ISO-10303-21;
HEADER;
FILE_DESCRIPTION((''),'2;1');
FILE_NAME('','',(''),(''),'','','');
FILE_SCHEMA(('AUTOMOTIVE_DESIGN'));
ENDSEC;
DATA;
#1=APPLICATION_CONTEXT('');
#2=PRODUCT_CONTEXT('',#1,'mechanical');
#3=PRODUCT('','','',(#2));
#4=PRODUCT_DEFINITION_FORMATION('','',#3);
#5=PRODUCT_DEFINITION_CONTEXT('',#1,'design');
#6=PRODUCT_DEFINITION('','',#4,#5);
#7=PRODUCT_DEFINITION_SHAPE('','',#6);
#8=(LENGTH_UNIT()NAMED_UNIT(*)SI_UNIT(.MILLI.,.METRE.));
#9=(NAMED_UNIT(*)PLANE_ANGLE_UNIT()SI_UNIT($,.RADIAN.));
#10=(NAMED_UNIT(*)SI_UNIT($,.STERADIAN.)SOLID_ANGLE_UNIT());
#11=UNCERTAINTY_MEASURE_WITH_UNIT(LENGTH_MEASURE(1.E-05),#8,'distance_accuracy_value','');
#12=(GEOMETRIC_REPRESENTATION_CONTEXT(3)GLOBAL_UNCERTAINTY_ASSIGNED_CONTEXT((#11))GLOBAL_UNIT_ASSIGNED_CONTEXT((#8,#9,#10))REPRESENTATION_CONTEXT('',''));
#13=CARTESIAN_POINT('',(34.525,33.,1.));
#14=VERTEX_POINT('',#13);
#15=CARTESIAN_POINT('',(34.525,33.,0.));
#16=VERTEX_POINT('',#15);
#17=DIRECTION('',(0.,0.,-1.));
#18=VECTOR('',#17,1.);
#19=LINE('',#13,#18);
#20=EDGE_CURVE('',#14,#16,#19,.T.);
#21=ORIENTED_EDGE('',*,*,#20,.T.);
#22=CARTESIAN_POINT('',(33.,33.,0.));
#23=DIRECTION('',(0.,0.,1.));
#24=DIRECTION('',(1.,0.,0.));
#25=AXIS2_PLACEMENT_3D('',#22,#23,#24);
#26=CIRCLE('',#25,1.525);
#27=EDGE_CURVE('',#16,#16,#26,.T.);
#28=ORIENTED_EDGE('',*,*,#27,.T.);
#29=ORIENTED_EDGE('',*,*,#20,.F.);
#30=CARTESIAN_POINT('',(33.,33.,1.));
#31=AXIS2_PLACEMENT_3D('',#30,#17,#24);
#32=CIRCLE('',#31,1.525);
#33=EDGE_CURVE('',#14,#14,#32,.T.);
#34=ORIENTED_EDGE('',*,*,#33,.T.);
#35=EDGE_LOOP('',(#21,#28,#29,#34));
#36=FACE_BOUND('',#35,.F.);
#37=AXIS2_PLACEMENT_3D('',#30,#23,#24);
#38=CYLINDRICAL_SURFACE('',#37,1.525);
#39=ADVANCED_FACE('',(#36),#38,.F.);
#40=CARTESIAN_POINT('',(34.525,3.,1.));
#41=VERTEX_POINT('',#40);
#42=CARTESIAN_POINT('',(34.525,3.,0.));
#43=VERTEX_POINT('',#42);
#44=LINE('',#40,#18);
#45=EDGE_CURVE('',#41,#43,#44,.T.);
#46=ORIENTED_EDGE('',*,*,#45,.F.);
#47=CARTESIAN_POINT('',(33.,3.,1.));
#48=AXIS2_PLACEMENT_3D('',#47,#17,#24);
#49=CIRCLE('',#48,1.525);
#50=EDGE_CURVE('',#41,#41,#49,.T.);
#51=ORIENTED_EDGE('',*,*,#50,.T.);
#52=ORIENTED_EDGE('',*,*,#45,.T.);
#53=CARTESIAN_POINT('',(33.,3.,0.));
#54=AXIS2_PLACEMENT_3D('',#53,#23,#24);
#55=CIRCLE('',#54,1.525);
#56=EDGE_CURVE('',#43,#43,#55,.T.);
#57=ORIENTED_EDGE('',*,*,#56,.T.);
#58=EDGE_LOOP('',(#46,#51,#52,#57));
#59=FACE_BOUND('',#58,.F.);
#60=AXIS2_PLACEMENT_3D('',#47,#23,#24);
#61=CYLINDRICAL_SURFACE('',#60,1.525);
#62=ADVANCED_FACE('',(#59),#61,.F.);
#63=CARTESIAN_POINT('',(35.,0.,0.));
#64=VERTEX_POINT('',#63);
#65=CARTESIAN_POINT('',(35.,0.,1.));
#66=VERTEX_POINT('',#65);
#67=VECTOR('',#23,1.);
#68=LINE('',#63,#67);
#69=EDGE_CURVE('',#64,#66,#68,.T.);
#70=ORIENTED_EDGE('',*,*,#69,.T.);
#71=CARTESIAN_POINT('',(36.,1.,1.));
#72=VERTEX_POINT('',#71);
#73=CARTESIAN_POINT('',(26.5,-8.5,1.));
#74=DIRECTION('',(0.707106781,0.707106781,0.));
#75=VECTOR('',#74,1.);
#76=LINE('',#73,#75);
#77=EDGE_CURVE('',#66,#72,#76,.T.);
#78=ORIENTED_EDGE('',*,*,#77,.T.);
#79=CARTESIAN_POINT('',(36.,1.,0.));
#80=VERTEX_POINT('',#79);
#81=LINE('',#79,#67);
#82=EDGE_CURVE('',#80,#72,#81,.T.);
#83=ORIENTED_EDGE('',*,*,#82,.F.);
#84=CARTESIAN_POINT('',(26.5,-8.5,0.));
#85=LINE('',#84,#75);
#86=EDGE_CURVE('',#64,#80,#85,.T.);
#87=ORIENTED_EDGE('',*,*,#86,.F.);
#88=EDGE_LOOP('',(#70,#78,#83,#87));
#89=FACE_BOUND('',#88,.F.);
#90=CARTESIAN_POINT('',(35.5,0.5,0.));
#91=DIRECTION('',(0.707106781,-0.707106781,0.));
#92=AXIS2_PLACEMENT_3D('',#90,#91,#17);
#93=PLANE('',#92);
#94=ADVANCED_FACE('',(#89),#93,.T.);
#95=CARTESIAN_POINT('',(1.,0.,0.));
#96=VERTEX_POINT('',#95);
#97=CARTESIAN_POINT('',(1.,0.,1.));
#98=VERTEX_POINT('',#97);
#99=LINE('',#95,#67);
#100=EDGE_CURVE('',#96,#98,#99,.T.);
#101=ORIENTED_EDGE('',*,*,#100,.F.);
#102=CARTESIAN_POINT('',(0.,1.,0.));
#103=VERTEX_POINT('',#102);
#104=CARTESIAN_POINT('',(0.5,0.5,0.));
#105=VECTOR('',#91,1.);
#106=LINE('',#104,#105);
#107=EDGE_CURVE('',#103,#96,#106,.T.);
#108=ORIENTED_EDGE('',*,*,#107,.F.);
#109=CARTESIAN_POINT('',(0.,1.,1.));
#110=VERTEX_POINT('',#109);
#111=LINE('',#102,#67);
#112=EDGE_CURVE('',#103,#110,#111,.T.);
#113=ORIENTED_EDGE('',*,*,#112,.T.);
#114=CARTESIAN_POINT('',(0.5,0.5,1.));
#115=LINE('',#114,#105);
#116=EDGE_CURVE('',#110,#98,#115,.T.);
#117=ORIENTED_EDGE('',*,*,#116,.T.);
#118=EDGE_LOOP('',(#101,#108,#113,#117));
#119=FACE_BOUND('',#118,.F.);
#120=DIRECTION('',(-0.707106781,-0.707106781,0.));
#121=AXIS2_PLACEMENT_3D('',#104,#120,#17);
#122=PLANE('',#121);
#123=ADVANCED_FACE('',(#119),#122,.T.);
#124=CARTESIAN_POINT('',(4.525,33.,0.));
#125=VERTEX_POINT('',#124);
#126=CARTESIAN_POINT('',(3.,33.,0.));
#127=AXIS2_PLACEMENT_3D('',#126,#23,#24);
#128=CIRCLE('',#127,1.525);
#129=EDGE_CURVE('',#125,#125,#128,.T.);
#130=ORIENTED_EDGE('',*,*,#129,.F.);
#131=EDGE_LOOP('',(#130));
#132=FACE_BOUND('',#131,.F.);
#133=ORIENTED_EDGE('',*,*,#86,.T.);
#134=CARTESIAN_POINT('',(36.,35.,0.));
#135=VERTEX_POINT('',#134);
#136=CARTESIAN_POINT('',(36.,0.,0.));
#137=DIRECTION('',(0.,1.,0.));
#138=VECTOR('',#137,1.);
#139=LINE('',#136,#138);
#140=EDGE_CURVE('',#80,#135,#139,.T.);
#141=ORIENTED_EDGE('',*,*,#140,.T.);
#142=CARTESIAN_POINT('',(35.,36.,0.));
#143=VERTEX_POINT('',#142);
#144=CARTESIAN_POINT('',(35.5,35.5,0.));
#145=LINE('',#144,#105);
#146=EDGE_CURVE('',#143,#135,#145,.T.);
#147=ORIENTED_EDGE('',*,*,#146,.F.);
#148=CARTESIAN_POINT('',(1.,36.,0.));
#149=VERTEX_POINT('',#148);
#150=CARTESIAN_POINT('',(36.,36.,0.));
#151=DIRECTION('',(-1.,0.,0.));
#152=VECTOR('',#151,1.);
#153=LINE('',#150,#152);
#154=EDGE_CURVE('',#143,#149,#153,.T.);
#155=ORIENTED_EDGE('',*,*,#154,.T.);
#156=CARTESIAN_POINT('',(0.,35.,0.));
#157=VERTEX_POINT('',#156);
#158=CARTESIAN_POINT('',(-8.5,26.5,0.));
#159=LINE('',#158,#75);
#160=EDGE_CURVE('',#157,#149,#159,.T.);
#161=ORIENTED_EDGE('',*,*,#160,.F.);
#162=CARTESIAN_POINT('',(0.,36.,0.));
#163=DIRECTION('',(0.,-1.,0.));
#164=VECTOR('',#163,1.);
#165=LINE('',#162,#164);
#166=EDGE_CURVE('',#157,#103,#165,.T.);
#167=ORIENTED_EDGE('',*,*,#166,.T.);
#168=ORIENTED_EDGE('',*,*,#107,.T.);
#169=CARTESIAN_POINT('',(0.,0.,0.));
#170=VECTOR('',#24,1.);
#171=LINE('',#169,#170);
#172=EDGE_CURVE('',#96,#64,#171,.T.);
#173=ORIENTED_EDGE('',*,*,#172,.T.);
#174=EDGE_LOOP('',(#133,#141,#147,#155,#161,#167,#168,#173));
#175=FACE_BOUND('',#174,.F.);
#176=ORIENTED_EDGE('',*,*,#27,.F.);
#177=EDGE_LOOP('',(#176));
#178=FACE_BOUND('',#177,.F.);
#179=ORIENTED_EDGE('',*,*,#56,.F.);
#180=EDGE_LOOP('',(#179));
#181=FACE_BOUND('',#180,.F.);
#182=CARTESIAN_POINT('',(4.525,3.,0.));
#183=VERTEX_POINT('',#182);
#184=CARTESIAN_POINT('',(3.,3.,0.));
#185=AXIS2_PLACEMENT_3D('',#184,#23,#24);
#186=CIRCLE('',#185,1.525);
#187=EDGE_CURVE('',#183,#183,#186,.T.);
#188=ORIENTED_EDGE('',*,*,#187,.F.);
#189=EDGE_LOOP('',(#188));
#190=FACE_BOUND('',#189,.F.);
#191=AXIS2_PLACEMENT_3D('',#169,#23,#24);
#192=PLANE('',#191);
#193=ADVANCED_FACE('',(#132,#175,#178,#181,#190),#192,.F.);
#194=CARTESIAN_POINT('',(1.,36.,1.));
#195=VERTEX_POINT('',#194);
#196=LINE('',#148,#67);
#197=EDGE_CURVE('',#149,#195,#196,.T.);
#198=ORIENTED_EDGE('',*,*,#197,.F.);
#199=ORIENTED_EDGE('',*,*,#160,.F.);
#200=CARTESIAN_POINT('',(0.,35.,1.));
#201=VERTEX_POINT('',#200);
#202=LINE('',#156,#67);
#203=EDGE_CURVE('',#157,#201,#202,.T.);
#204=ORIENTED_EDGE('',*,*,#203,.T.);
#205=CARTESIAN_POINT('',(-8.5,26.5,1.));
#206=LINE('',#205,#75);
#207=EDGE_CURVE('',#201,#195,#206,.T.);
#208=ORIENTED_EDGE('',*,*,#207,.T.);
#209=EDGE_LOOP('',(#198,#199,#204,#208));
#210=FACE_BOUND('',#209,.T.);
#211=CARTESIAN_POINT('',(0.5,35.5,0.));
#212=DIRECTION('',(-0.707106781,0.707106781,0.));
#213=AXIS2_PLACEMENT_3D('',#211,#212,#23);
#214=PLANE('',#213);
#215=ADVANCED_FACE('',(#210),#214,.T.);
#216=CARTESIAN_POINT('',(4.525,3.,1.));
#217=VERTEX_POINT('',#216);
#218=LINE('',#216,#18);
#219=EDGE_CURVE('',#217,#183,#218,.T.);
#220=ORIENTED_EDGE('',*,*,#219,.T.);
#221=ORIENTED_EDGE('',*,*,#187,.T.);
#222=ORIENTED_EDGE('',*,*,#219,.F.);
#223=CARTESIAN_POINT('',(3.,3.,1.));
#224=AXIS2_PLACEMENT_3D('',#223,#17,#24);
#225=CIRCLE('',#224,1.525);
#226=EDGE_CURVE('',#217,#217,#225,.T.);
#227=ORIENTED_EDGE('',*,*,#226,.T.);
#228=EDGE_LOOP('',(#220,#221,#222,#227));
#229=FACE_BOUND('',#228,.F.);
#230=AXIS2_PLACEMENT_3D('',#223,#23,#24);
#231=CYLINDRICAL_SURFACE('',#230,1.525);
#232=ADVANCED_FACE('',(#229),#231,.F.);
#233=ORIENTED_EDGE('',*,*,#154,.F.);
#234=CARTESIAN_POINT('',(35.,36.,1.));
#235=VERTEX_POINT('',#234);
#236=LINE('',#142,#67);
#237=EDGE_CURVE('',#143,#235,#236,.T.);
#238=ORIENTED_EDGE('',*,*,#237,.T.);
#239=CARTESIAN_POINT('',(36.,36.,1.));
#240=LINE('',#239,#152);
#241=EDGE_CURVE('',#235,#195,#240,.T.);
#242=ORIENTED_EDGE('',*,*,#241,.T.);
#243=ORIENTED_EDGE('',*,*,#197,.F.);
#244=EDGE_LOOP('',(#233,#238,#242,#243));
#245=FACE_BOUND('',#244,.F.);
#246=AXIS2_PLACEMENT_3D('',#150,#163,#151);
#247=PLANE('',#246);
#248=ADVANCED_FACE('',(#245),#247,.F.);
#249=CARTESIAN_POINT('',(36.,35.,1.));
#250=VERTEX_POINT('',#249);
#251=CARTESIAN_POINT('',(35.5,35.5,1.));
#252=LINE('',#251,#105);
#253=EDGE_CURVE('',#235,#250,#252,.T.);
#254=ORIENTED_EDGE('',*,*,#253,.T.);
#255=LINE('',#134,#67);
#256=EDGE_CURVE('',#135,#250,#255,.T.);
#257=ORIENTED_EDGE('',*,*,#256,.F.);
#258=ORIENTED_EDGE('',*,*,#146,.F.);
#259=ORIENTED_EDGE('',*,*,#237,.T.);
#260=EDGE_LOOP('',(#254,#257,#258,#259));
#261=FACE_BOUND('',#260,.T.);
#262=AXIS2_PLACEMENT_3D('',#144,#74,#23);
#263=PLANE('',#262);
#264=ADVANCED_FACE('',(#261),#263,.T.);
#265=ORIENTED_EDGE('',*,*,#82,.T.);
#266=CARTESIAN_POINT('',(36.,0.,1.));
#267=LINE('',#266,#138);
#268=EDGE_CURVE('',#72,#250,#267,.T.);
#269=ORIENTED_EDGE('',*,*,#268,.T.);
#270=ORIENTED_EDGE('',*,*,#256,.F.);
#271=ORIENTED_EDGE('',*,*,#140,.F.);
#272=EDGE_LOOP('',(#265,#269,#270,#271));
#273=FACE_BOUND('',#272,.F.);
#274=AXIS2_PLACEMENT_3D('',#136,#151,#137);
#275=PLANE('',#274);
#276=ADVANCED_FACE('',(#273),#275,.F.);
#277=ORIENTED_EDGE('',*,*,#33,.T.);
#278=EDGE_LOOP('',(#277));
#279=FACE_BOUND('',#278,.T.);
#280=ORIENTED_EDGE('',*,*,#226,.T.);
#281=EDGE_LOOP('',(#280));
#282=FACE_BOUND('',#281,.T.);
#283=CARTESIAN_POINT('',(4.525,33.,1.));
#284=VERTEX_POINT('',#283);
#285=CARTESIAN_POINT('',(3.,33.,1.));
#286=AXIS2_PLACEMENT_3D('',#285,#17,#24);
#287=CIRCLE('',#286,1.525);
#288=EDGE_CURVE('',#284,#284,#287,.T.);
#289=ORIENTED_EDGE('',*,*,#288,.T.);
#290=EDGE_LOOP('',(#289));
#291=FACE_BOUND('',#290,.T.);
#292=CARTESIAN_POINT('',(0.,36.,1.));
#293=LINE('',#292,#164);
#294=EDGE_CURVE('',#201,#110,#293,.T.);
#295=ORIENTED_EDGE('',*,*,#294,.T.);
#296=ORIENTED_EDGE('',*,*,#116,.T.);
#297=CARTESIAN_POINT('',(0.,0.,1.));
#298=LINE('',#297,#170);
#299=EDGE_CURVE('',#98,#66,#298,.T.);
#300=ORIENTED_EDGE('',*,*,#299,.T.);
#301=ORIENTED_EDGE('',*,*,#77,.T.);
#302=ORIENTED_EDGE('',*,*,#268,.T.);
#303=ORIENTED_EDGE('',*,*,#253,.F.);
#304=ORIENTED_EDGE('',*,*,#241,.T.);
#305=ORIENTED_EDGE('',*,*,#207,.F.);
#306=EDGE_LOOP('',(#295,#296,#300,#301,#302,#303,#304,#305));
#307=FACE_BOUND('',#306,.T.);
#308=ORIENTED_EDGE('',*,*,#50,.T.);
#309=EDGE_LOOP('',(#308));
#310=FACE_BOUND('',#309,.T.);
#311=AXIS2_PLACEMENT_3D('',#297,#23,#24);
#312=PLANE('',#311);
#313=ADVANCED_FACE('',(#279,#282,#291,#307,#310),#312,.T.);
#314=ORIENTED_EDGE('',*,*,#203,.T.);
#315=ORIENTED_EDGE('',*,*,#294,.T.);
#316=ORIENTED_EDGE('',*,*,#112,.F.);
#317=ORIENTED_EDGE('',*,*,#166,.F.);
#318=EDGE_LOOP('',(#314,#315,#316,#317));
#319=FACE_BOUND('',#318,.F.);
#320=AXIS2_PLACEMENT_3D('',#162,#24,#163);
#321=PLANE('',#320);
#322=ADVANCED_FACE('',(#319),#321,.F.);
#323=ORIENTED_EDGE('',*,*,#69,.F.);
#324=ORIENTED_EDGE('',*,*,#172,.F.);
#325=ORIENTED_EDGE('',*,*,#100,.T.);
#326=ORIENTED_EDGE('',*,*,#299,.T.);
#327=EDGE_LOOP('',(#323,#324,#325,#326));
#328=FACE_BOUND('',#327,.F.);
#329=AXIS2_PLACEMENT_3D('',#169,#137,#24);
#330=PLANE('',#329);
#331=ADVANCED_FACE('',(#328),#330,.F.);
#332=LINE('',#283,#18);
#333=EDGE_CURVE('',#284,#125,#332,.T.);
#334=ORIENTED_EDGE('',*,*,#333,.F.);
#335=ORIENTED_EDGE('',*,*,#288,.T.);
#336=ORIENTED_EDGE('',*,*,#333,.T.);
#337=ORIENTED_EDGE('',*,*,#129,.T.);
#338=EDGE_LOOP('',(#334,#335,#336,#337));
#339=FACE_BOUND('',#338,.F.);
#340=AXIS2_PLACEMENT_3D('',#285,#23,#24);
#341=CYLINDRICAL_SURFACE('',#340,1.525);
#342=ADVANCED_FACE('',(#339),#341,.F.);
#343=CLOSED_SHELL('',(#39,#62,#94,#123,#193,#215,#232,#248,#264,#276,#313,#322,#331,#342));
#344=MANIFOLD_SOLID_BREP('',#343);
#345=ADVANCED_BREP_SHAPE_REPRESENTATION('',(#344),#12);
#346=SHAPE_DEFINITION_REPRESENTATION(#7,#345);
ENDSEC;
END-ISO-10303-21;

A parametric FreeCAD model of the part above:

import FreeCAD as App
import Part
import Sketcher

V = App.Vector


def edges_at(feature, points):
    """Names of the edges that pass closest to the given points."""
    edges = feature.Shape.Edges
    near = lambda p: min(range(len(edges)), key=lambda i: edges[i].distToShape(Part.Vertex(*p))[0])
    return sorted({f"Edge{near(p) + 1}" for p in points})


def add_polygon(sketch, points):
    """Adds a closed chain of lines whose ends are joined by coincident constraints."""
    first, n = sketch.GeometryCount, len(points)
    for a, b in zip(points, points[1:] + points[:1]):
        sketch.addGeometry(Part.LineSegment(App.Vector(*a, 0), App.Vector(*b, 0)), False)
    for i in range(n):
        sketch.addConstraint(Sketcher.Constraint("Coincident", first + i, 2, first + (i + 1) % n, 1))

doc = App.newDocument("Part")
body = doc.addObject("PartDesign::Body", "Body")

# Sketch on XY plane
sketch1 = doc.addObject("Sketcher::SketchObject", "Sketch")
body.addObject(sketch1)
sketch1.AttachmentSupport = (doc.XY_Plane, [""])
sketch1.MapMode = "FlatFace"
add_polygon(sketch1, [(0, 36), (0, 0), (36, 0), (36, 36)])  # lines 0-3
sketch1.addConstraint([
    Sketcher.Constraint("Vertical", 0),
    Sketcher.Constraint("Horizontal", 1),
    Sketcher.Constraint("Vertical", 2),
    Sketcher.Constraint("Horizontal", 3),
    Sketcher.Constraint("Coincident", 0, 2, -1, 1),
    Sketcher.Constraint("Equal", 3, 0),
    Sketcher.Constraint("DistanceX", 1, 1, 1, 2, 36.0),
])
pad1 = doc.addObject("PartDesign::Pad", "Pad")
body.addObject(pad1)
pad1.Profile = sketch1
pad1.Length = 1

# Sketch on XY plane
sketch2 = doc.addObject("Sketcher::SketchObject", "Sketch001")
body.addObject(sketch2)
sketch2.AttachmentSupport = (doc.XY_Plane, [""])
sketch2.MapMode = "FlatFace"
sketch2.AttachmentOffset = App.Placement(V(0, 0, 1), App.Rotation())
sketch2.addGeometry([
    Part.Circle(V(3, 33, 0), V(0, 0, 1), 1.5),
    Part.Circle(V(33, 33, 0), V(0, 0, 1), 1.5),
    Part.Circle(V(3, 3, 0), V(0, 0, 1), 1.5),
    Part.Circle(V(33, 3, 0), V(0, 0, 1), 1.5),
], False)
sketch2.addConstraint([
    Sketcher.Constraint("Equal", 0, 1),
    Sketcher.Constraint("Equal", 1, 2),
    Sketcher.Constraint("Equal", 2, 3),
    Sketcher.Constraint("Horizontal", 0, 3, 1, 3),
    Sketcher.Constraint("Horizontal", 2, 3, 3, 3),
    Sketcher.Constraint("Vertical", 0, 3, 2, 3),
    Sketcher.Constraint("Vertical", 1, 3, 3, 3),
    Sketcher.Constraint("Diameter", 0, 3.05),
    Sketcher.Constraint("DistanceX", -1, 1, 0, 3, 3.0),
    Sketcher.Constraint("DistanceY", -1, 1, 2, 3, 3.0),
    Sketcher.Constraint("DistanceX", 0, 3, 1, 3, 30.0),
    Sketcher.Constraint("DistanceY", 2, 3, 0, 3, 30.0),
])
pocket1 = doc.addObject("PartDesign::Pocket", "Pocket")
body.addObject(pocket1)
pocket1.Profile = sketch2
pocket1.Type = "ThroughAll"
doc.recompute()

chamfer = doc.addObject("PartDesign::Chamfer", "Chamfer")
body.addObject(chamfer)
chamfer.Base = (pocket1, edges_at(pocket1, [
    (0, 36, 0.5),
    (36, 36, 0.5),
    (36, 0, 0.5),
    (0, 0, 0.5),
]))
chamfer.Size = 1

doc.recompute()
